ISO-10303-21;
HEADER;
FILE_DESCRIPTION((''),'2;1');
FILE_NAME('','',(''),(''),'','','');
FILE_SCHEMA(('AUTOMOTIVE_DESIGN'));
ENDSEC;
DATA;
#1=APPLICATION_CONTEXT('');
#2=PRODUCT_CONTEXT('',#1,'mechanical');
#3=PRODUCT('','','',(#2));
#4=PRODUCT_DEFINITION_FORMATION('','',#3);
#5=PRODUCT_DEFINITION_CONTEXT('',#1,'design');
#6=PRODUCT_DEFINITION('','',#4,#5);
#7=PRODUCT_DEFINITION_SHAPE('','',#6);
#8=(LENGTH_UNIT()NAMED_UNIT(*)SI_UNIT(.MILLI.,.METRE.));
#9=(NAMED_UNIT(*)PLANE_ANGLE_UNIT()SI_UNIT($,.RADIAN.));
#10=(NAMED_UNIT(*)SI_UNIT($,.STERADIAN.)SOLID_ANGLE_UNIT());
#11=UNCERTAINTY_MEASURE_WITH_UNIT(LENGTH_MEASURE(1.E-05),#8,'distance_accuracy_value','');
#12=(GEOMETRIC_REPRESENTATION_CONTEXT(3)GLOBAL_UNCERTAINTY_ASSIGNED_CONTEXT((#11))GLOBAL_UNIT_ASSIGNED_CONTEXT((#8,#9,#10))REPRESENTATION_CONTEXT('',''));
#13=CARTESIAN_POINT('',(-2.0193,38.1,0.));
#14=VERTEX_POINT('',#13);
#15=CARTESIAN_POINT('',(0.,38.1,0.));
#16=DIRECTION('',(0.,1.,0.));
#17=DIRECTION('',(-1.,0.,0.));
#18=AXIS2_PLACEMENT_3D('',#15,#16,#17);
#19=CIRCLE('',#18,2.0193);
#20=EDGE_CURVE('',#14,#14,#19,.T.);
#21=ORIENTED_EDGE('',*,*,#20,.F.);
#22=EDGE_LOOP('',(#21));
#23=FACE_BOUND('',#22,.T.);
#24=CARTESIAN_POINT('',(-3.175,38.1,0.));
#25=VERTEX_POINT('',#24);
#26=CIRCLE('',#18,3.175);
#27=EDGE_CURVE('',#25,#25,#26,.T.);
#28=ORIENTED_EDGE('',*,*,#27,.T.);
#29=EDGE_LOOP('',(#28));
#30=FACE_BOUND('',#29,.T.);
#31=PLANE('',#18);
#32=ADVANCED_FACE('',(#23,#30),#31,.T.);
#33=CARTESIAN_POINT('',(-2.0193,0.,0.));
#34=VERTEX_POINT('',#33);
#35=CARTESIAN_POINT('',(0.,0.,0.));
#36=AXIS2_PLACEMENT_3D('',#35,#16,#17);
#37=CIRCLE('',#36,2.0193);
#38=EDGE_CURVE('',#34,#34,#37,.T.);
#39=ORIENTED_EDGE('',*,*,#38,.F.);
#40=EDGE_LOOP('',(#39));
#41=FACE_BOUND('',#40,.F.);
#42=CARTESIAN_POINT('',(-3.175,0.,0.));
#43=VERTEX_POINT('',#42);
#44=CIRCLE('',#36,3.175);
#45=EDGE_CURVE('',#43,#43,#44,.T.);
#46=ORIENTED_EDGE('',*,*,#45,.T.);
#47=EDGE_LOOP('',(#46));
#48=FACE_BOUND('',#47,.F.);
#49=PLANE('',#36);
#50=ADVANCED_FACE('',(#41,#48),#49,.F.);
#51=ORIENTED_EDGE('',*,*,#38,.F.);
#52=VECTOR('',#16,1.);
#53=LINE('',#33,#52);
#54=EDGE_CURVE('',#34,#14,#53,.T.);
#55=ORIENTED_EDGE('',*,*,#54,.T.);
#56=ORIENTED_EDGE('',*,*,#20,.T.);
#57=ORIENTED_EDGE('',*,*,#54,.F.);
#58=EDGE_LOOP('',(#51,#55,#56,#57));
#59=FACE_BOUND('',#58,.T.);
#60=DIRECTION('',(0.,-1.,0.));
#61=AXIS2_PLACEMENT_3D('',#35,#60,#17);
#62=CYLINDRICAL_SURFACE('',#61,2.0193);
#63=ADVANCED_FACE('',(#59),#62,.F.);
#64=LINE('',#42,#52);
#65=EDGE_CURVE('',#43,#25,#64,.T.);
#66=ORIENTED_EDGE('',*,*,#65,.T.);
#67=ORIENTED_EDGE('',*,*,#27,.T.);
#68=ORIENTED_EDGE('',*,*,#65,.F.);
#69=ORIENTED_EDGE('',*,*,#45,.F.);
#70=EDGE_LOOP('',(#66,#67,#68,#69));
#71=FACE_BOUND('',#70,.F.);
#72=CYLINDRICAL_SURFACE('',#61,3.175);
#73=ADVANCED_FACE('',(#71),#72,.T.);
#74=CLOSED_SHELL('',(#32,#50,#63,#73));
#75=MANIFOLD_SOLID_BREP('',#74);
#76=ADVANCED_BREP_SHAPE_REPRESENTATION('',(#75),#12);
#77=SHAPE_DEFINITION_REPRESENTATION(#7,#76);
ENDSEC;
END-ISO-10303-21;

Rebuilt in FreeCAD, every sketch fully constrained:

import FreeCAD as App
import Part
import Sketcher
Q = App.Units.Quantity

doc = App.newDocument("Part")
body = doc.addObject("PartDesign::Body", "Body")

sketch1 = doc.addObject("Sketcher::SketchObject", "Sketch")
body.addObject(sketch1)
sketch1.AttachmentSupport = (doc.XZ_Plane, [""])
sketch1.MapMode = "FlatFace"
sketch1.addGeometry([
    Part.Circle(App.Vector(0, 0, 0), App.Vector(0, 0, 1), 3.2),
    Part.Circle(App.Vector(0, 0, 0), App.Vector(0, 0, 1), 2),
], False)
sketch1.addConstraint([
    Sketcher.Constraint("Coincident", 0, 3, -1, 1),
    Sketcher.Constraint("Coincident", 1, 3, -1, 1),
    Sketcher.Constraint("Diameter", 0, Q("0.25 in")),
    Sketcher.Constraint("Diameter", 1, Q("0.159 in")),
])
pad1 = doc.addObject("PartDesign::Pad", "Pad")
body.addObject(pad1)
pad1.Profile = sketch1
pad1.Length = Q("1.5 in")
pad1.Reversed = True

doc.recompute()
